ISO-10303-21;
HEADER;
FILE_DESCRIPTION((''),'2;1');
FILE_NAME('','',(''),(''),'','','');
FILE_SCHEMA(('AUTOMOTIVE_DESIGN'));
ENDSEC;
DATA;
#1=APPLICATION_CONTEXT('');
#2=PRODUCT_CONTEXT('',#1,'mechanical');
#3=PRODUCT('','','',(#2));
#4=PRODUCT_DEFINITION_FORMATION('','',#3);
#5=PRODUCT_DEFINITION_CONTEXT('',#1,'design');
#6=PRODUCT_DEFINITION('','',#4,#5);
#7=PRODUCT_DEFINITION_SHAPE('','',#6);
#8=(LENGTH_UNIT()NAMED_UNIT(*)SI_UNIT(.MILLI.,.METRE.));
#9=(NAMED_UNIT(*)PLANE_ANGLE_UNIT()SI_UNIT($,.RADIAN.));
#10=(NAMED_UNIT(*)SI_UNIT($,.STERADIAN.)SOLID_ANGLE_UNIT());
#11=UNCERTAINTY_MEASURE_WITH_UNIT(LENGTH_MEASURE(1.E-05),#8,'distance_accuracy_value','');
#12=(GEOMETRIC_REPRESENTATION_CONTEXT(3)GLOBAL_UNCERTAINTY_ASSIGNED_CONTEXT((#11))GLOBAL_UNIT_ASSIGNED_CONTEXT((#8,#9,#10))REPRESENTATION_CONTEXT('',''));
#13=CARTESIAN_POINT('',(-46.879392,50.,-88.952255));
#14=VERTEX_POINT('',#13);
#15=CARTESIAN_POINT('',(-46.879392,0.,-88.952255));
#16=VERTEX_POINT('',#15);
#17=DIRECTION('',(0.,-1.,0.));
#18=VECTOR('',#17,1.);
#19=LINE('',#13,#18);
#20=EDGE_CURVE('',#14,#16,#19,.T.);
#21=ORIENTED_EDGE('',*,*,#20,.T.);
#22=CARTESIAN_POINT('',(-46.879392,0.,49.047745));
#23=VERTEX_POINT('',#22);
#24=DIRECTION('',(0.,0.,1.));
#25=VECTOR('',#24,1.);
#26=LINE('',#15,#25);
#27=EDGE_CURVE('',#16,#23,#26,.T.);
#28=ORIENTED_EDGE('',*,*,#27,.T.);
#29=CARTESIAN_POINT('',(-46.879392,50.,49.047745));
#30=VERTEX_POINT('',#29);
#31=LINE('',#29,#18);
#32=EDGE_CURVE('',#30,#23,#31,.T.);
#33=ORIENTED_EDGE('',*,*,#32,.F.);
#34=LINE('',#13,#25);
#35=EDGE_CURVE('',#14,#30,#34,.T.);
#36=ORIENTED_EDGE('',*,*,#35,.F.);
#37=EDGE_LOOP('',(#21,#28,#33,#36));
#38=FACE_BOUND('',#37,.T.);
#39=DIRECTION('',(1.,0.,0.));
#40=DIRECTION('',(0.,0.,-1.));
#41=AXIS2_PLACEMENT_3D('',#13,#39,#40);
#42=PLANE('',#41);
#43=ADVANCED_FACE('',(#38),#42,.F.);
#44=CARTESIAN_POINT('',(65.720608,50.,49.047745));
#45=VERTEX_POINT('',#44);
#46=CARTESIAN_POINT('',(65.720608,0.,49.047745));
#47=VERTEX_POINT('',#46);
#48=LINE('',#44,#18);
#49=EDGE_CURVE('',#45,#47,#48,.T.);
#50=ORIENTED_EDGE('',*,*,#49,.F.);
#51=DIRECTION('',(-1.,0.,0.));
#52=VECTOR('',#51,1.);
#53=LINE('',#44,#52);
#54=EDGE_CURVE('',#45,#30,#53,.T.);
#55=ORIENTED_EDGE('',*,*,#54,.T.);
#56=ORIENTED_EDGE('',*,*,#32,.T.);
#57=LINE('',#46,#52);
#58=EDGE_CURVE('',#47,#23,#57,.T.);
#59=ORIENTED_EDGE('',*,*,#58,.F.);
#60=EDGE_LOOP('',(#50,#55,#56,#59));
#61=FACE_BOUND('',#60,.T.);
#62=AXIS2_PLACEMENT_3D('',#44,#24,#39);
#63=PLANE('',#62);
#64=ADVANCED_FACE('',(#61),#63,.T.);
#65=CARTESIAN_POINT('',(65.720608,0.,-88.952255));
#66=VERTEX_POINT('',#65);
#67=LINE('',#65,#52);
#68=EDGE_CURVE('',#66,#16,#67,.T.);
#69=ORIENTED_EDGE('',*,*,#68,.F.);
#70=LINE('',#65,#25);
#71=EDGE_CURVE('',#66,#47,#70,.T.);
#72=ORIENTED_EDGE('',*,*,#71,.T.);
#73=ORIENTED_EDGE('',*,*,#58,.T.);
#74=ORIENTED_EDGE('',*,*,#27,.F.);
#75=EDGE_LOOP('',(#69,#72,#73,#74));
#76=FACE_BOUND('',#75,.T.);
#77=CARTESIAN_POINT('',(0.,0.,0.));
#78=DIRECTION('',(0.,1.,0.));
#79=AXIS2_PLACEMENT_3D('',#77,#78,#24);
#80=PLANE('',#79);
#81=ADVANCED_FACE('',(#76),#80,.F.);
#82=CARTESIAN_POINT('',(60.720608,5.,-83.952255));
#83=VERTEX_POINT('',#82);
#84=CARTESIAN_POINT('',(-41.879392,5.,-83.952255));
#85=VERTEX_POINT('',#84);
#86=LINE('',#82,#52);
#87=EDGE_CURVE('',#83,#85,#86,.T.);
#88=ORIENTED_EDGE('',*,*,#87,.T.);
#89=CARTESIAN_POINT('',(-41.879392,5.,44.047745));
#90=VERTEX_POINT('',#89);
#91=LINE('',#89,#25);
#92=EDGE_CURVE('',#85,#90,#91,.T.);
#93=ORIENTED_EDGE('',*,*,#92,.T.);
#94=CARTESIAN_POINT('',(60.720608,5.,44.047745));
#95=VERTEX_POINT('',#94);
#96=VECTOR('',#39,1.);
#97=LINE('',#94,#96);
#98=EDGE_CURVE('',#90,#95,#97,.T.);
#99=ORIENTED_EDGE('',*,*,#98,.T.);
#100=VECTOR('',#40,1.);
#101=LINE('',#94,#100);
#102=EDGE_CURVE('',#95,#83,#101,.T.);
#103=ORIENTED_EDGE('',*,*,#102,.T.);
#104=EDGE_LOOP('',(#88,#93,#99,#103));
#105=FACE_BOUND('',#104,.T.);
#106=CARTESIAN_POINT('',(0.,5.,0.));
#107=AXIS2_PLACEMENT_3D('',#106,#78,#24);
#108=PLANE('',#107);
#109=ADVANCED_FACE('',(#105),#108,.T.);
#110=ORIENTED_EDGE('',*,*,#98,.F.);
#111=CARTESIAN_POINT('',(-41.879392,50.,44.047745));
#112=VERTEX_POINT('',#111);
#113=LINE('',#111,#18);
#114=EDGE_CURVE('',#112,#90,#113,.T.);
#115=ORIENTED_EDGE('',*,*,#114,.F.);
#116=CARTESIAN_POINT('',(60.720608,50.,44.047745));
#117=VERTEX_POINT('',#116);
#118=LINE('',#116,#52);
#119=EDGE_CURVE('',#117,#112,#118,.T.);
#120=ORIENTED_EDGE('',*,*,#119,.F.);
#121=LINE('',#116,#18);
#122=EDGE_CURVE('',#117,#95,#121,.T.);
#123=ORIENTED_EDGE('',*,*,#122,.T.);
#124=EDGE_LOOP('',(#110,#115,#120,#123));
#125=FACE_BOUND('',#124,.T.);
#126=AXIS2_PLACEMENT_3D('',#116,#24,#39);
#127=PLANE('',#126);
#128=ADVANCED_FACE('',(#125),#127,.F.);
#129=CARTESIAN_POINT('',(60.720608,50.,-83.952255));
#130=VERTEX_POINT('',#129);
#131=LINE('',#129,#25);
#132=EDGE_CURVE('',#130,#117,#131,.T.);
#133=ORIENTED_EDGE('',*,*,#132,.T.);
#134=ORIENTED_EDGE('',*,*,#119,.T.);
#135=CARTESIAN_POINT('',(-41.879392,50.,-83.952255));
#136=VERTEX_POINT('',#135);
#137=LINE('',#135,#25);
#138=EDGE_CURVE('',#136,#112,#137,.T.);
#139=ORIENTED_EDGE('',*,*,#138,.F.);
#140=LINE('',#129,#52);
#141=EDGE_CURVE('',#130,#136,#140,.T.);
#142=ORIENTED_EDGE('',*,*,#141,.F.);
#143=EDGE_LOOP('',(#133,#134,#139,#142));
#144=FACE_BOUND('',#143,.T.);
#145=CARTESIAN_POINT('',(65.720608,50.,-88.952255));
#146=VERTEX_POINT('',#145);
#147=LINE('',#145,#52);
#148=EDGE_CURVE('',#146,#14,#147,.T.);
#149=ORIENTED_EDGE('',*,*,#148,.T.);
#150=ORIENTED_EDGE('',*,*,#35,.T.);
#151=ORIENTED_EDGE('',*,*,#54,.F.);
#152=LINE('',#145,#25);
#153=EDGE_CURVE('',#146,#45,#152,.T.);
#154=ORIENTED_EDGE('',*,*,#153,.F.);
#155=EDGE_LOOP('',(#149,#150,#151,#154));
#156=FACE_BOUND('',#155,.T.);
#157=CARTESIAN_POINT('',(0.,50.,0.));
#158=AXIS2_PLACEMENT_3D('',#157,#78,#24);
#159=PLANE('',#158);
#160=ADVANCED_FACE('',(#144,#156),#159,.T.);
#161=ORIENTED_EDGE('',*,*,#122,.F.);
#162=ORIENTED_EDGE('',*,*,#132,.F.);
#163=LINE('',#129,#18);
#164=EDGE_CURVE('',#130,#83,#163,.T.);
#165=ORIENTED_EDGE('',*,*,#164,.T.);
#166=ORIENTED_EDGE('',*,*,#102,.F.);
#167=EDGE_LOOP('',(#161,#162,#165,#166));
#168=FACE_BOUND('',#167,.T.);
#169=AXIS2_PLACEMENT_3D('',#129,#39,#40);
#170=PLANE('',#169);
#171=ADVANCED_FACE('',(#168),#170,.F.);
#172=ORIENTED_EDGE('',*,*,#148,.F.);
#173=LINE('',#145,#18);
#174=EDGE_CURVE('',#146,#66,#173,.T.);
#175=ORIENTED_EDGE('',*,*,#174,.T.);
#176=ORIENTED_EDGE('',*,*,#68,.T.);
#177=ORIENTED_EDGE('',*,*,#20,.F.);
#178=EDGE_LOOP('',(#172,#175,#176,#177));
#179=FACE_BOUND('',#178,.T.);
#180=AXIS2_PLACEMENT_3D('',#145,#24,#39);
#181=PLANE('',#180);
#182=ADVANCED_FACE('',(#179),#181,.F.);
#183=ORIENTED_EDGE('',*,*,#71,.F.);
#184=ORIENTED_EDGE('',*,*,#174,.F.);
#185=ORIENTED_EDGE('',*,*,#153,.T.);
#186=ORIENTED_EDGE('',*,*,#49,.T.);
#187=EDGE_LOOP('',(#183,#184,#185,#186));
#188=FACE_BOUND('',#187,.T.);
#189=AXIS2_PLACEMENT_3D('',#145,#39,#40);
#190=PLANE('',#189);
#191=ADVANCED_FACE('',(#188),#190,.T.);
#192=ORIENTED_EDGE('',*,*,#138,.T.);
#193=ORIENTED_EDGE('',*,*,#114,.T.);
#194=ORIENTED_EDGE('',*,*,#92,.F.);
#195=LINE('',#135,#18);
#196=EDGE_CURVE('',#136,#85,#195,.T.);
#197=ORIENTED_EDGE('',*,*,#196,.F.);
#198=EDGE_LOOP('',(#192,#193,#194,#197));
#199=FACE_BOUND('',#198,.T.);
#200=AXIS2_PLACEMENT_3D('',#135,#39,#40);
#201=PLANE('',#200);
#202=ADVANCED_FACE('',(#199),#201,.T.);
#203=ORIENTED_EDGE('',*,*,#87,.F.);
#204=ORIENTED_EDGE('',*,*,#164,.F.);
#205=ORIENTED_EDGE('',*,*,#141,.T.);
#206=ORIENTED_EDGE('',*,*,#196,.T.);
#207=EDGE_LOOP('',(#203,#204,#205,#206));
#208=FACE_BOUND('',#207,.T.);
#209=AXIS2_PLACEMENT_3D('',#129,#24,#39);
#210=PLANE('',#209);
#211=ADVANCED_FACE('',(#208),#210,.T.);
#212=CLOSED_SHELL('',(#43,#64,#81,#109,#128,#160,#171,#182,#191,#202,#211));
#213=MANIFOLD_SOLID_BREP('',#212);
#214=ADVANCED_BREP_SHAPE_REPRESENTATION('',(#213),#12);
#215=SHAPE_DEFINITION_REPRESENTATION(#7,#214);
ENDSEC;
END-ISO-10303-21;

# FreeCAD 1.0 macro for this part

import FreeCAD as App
import Part
import Sketcher
from FreeCAD import Vector


def add_polygon(sketch, points):
    """Adds a closed chain of lines whose ends are joined by coincident constraints."""
    first, n = sketch.GeometryCount, len(points)
    for a, b in zip(points, points[1:] + points[:1]):
        sketch.addGeometry(Part.LineSegment(App.Vector(*a, 0), App.Vector(*b, 0)), False)
    for i in range(n):
        sketch.addConstraint(Sketcher.Constraint("Coincident", first + i, 2, first + (i + 1) % n, 1))

doc = App.newDocument("Part")
body = doc.addObject("PartDesign::Body", "Body")

sketch1 = body.newObject("Sketcher::SketchObject", "Sketch")
sketch1.AttachmentSupport = (doc.getObject("XZ_Plane"), [""])
sketch1.MapMode = "FlatFace"
add_polygon(sketch1, [(-41, -83), (-41, 44), (60, 44), (60, -83)])
sketch1.addConstraint(Sketcher.Constraint("Vertical", 0))
sketch1.addConstraint(Sketcher.Constraint("Horizontal", 1))
sketch1.addConstraint(Sketcher.Constraint("Vertical", 2))
sketch1.addConstraint(Sketcher.Constraint("Horizontal", 3))
sketch1.addConstraint(Sketcher.Constraint("DistanceY", 0, 1, 0, 2, 127.0))
sketch1.addConstraint(Sketcher.Constraint("DistanceX", 1, 1, 1, 2, 101.6))
sketch1.addConstraint(Sketcher.Constraint("DistanceX", 0, 2, -1, 1, 41.379392))
sketch1.addConstraint(Sketcher.Constraint("DistanceY", -1, 1, 0, 2, 43.547745))
pad1 = body.newObject("PartDesign::Pad", "Pad")
pad1.Profile = sketch1
pad1.Length = 5
pad1.Reversed = True

sketch2 = body.newObject("Sketcher::SketchObject", "Sketch001")
sketch2.AttachmentSupport = (doc.getObject("XZ_Plane"), [""])
sketch2.MapMode = "FlatFace"
sketch2.AttachmentOffset = App.Placement(Vector(0, 0, -5), App.Rotation())
add_polygon(sketch2, [(-42, -84), (-42, 44), (61, 44), (61, -84)])
sketch2.addConstraint(Sketcher.Constraint("Vertical", 0))
sketch2.addConstraint(Sketcher.Constraint("Horizontal", 1))
sketch2.addConstraint(Sketcher.Constraint("Vertical", 2))
sketch2.addConstraint(Sketcher.Constraint("Horizontal", 3))
sketch2.addConstraint(Sketcher.Constraint("DistanceY", 0, 1, 0, 2, 128.0))
sketch2.addConstraint(Sketcher.Constraint("DistanceX", 1, 1, 1, 2, 102.6))
sketch2.addConstraint(Sketcher.Constraint("DistanceX", 0, 2, -1, 1, 41.879392))
sketch2.addConstraint(Sketcher.Constraint("DistanceY", -1, 1, 0, 2, 44.047745))
pad2 = body.newObject("PartDesign::Pad", "Pad001")
pad2.Profile = sketch2
pad2.Length = 5

sketch3 = body.newObject("Sketcher::SketchObject", "Sketch002")
sketch3.AttachmentSupport = (doc.getObject("XZ_Plane"), [""])
sketch3.MapMode = "FlatFace"
add_polygon(sketch3, [(-47, 49), (-47, -89), (66, -89), (66, 49)])
add_polygon(sketch3, [(61, -84), (-42, -84), (-42, 44), (61, 44)])
sketch3.addConstraint(Sketcher.Constraint("Vertical", 0))
sketch3.addConstraint(Sketcher.Constraint("Horizontal", 1))
sketch3.addConstraint(Sketcher.Constraint("Vertical", 2))
sketch3.addConstraint(Sketcher.Constraint("Horizontal", 3))
sketch3.addConstraint(Sketcher.Constraint("Horizontal", 4))
sketch3.addConstraint(Sketcher.Constraint("Vertical", 5))
sketch3.addConstraint(Sketcher.Constraint("Horizontal", 6))
sketch3.addConstraint(Sketcher.Constraint("Vertical", 7))
sketch3.addConstraint(Sketcher.Constraint("DistanceY", 0, 2, 0, 1, 138.0))
sketch3.addConstraint(Sketcher.Constraint("DistanceY", 5, 1, 5, 2, 128.0))
sketch3.addConstraint(Sketcher.Constraint("DistanceX", 1, 1, 1, 2, 112.6))
sketch3.addConstraint(Sketcher.Constraint("DistanceX", 4, 2, 4, 1, 102.6))
sketch3.addConstraint(Sketcher.Constraint("DistanceX", 0, 2, 4, 2, 5.0))
sketch3.addConstraint(Sketcher.Constraint("DistanceY", 0, 2, 4, 2, 5.0))
sketch3.addConstraint(Sketcher.Constraint("DistanceX", 0, 2, -1, 1, 46.879392))
sketch3.addConstraint(Sketcher.Constraint("DistanceY", 0, 2, -1, 1, 88.952255))
pad3 = body.newObject("PartDesign::Pad", "Pad002")
pad3.Profile = sketch3
pad3.Length = 50
pad3.Reversed = True

doc.recompute()
